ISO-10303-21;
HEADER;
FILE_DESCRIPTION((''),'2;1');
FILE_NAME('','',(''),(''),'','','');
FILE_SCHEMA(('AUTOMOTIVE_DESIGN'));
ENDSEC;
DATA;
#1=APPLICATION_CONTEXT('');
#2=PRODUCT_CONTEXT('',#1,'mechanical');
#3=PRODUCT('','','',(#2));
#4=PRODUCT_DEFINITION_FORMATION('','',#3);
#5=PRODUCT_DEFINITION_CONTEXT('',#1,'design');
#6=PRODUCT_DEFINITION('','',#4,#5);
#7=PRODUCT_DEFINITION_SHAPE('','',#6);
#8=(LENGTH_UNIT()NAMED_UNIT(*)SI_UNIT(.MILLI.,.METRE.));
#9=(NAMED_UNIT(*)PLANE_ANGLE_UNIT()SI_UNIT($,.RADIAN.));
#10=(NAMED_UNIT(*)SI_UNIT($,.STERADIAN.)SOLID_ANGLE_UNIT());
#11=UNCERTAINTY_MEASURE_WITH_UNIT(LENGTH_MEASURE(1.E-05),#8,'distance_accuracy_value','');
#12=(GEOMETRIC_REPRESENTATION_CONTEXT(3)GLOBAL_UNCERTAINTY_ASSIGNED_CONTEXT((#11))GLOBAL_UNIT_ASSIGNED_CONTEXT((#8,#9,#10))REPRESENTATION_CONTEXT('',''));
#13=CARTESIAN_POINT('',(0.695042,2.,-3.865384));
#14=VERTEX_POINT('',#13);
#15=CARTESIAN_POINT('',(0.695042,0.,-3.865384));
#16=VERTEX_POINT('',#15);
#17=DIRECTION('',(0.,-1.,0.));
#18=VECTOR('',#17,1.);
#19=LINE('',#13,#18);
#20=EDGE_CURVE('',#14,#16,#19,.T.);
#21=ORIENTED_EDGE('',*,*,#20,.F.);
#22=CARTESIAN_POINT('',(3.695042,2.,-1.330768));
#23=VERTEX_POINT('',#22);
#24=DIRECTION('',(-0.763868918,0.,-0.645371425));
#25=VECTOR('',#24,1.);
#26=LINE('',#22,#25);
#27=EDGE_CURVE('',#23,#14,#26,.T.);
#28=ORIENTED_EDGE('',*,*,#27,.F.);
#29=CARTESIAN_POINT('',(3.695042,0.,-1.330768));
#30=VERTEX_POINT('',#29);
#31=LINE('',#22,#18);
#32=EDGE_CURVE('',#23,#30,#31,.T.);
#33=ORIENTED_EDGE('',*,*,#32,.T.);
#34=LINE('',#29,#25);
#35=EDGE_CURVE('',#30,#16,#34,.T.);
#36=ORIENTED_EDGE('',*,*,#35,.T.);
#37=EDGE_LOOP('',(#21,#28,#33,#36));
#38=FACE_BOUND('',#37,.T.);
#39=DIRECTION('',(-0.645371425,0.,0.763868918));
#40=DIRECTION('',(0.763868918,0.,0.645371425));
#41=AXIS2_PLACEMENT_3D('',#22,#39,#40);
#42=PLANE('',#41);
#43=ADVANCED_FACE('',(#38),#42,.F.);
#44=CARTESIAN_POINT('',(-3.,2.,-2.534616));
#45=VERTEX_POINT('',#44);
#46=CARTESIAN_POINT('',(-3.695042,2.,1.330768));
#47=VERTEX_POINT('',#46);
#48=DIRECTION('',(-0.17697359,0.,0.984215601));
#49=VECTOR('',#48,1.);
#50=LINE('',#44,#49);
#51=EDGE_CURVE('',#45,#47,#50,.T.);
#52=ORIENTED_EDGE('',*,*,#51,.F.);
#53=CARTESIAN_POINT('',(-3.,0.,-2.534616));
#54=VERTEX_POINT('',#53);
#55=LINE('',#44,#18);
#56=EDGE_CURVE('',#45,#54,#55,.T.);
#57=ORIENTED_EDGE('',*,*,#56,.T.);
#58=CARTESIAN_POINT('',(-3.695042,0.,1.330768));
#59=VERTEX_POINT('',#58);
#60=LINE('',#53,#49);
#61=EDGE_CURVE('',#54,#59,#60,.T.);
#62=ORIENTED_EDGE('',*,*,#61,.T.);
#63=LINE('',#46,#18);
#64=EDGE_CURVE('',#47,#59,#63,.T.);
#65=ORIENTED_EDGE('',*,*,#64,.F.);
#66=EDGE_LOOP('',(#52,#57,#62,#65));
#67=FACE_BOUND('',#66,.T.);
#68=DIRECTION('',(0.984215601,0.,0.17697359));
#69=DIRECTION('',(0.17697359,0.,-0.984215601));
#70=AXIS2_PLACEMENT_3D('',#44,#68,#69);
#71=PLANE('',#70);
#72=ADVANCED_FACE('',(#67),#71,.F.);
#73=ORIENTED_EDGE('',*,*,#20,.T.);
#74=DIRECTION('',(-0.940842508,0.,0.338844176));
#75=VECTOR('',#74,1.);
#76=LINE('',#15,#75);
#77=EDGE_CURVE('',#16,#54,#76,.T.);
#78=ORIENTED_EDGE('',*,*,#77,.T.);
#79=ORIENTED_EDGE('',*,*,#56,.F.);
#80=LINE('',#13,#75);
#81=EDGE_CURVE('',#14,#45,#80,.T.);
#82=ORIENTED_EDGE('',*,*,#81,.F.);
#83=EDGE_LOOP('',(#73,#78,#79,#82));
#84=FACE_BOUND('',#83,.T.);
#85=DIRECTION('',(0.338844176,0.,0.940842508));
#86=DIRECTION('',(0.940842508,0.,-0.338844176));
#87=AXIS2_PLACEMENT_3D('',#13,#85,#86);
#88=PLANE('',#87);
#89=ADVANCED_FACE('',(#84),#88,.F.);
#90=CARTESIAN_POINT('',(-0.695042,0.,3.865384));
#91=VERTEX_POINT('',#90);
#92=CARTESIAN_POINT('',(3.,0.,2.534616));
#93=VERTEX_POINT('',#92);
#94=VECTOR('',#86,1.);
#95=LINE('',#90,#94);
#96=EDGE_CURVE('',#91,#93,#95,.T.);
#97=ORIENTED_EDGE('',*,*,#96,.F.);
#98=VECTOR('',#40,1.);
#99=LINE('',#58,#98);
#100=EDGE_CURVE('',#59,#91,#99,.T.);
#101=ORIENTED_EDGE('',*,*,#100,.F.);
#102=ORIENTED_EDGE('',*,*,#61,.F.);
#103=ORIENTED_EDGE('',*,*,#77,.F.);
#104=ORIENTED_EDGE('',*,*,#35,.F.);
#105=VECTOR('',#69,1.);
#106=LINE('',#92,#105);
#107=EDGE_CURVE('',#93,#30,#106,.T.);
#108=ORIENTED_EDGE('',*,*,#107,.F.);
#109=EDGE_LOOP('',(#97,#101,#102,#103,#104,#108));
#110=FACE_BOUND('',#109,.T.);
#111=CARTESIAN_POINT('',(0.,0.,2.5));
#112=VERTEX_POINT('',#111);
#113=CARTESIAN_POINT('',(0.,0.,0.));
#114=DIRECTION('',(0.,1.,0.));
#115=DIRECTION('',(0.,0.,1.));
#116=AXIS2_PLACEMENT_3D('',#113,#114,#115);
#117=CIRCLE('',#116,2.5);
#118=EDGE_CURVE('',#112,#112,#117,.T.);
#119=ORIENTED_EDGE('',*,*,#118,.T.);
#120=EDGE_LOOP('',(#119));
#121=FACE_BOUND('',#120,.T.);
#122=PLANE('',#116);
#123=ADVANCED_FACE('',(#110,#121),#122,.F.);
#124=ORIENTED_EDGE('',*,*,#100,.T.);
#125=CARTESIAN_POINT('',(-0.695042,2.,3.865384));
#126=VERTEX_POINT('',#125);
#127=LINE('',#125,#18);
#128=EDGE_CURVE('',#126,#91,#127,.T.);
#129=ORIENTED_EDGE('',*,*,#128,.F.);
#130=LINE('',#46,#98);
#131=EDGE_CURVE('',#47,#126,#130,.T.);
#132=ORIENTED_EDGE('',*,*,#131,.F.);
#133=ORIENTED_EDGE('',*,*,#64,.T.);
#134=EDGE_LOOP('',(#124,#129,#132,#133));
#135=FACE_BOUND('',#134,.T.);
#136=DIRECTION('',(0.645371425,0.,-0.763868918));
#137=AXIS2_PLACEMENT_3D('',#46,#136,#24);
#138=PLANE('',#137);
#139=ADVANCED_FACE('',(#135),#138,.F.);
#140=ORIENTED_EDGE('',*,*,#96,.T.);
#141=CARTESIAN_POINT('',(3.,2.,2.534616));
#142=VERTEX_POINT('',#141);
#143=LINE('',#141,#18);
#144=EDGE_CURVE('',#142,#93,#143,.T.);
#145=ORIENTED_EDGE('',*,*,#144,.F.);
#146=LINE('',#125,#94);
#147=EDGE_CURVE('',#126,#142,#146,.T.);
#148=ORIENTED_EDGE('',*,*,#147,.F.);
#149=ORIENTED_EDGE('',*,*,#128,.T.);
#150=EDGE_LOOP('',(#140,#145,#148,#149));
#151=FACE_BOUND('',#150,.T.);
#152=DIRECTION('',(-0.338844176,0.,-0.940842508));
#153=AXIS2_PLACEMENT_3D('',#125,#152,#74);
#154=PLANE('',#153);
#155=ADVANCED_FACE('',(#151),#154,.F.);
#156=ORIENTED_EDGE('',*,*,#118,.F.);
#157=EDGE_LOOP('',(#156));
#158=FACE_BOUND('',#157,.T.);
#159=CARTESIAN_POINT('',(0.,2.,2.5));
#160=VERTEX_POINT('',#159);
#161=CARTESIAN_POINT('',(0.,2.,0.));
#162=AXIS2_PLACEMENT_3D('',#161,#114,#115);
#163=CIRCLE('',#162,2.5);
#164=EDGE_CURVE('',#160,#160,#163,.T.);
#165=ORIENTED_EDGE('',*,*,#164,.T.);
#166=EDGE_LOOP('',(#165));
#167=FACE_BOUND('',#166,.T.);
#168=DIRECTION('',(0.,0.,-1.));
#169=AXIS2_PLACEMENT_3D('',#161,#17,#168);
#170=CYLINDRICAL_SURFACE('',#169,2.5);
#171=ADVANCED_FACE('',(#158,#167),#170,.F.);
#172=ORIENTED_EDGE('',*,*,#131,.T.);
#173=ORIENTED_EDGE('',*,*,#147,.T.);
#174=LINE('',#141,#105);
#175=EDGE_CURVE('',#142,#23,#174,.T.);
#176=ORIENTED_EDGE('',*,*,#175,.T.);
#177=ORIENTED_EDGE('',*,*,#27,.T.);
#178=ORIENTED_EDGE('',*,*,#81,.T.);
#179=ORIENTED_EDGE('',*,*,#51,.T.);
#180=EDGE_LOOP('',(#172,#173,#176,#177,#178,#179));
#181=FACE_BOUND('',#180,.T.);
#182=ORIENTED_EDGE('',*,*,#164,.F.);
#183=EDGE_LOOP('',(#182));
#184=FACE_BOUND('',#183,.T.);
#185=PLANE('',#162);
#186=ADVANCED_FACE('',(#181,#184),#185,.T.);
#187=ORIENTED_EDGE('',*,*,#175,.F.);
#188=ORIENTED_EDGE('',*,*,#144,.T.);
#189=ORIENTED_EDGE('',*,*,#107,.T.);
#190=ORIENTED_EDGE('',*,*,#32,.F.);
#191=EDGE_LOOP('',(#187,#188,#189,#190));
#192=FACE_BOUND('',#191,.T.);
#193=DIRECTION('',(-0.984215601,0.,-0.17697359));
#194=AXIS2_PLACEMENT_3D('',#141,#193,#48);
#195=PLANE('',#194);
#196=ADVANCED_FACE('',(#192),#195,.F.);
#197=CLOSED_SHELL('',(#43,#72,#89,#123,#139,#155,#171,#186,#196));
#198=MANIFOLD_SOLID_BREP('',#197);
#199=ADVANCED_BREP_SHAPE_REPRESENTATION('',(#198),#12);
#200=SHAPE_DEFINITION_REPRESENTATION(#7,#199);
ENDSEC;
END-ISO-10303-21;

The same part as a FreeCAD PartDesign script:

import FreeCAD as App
import Part
import Sketcher
from FreeCAD import Vector

doc = App.newDocument("Part")
body = doc.addObject("PartDesign::Body", "Body")

sketch1 = body.newObject("Sketcher::SketchObject", "Sketch")
sketch1.AttachmentSupport = (doc.getObject("XZ_Plane"), [""])
sketch1.MapMode = "FlatFace"
sketch1.addGeometry([
    Part.LineSegment(Vector(3.7, -1.3, 0), Vector(0.7, -3.9, 0)),
    Part.LineSegment(Vector(0.7, -3.9, 0), Vector(-3, -2.5, 0)),
    Part.LineSegment(Vector(-3, -2.5, 0), Vector(-3.7, 1.3, 0)),
    Part.LineSegment(Vector(-3.7, 1.3, 0), Vector(-0.7, 3.9, 0)),
    Part.LineSegment(Vector(-0.7, 3.9, 0), Vector(3, 2.5, 0)),
    Part.LineSegment(Vector(3, 2.5, 0), Vector(3.7, -1.3, 0)),
    Part.Circle(Vector(0, 0, 0), Vector(0, 0, 1), 2.5),
], False)
sketch1.addConstraint([
    Sketcher.Constraint("Coincident", 0, 2, 1, 1),
    Sketcher.Constraint("Coincident", 1, 2, 2, 1),
    Sketcher.Constraint("Coincident", 2, 2, 3, 1),
    Sketcher.Constraint("Coincident", 3, 2, 4, 1),
    Sketcher.Constraint("Coincident", 4, 2, 5, 1),
    Sketcher.Constraint("Coincident", 5, 2, 0, 1),
    Sketcher.Constraint("Coincident", 6, 3, -1, 1),
    Sketcher.Constraint("Symmetric", 0, 2, 3, 2, -1, 1),
    Sketcher.Constraint("Symmetric", 1, 2, 4, 2, -1, 1),
    Sketcher.Constraint("Symmetric", 2, 2, 5, 2, -1, 1),
    Sketcher.Constraint("Equal", 0, 1),
    Sketcher.Constraint("Equal", 1, 2),
    Sketcher.Constraint("Diameter", 6, 5.0),
    Sketcher.Constraint("DistanceX", 1, 2, -1, 1, 3.0),
    Sketcher.Constraint("DistanceX", 2, 2, 3, 2, 3.0),
    Sketcher.Constraint("DistanceY", 1, 2, 3, 2, 6.4),
    Sketcher.Constraint("DistanceX", -1, 1, 0, 2, 0.695042),
])
pad1 = body.newObject("PartDesign::Pad", "Pad")
pad1.Profile = sketch1
pad1.Length = 2
pad1.Reversed = True

doc.recompute()
